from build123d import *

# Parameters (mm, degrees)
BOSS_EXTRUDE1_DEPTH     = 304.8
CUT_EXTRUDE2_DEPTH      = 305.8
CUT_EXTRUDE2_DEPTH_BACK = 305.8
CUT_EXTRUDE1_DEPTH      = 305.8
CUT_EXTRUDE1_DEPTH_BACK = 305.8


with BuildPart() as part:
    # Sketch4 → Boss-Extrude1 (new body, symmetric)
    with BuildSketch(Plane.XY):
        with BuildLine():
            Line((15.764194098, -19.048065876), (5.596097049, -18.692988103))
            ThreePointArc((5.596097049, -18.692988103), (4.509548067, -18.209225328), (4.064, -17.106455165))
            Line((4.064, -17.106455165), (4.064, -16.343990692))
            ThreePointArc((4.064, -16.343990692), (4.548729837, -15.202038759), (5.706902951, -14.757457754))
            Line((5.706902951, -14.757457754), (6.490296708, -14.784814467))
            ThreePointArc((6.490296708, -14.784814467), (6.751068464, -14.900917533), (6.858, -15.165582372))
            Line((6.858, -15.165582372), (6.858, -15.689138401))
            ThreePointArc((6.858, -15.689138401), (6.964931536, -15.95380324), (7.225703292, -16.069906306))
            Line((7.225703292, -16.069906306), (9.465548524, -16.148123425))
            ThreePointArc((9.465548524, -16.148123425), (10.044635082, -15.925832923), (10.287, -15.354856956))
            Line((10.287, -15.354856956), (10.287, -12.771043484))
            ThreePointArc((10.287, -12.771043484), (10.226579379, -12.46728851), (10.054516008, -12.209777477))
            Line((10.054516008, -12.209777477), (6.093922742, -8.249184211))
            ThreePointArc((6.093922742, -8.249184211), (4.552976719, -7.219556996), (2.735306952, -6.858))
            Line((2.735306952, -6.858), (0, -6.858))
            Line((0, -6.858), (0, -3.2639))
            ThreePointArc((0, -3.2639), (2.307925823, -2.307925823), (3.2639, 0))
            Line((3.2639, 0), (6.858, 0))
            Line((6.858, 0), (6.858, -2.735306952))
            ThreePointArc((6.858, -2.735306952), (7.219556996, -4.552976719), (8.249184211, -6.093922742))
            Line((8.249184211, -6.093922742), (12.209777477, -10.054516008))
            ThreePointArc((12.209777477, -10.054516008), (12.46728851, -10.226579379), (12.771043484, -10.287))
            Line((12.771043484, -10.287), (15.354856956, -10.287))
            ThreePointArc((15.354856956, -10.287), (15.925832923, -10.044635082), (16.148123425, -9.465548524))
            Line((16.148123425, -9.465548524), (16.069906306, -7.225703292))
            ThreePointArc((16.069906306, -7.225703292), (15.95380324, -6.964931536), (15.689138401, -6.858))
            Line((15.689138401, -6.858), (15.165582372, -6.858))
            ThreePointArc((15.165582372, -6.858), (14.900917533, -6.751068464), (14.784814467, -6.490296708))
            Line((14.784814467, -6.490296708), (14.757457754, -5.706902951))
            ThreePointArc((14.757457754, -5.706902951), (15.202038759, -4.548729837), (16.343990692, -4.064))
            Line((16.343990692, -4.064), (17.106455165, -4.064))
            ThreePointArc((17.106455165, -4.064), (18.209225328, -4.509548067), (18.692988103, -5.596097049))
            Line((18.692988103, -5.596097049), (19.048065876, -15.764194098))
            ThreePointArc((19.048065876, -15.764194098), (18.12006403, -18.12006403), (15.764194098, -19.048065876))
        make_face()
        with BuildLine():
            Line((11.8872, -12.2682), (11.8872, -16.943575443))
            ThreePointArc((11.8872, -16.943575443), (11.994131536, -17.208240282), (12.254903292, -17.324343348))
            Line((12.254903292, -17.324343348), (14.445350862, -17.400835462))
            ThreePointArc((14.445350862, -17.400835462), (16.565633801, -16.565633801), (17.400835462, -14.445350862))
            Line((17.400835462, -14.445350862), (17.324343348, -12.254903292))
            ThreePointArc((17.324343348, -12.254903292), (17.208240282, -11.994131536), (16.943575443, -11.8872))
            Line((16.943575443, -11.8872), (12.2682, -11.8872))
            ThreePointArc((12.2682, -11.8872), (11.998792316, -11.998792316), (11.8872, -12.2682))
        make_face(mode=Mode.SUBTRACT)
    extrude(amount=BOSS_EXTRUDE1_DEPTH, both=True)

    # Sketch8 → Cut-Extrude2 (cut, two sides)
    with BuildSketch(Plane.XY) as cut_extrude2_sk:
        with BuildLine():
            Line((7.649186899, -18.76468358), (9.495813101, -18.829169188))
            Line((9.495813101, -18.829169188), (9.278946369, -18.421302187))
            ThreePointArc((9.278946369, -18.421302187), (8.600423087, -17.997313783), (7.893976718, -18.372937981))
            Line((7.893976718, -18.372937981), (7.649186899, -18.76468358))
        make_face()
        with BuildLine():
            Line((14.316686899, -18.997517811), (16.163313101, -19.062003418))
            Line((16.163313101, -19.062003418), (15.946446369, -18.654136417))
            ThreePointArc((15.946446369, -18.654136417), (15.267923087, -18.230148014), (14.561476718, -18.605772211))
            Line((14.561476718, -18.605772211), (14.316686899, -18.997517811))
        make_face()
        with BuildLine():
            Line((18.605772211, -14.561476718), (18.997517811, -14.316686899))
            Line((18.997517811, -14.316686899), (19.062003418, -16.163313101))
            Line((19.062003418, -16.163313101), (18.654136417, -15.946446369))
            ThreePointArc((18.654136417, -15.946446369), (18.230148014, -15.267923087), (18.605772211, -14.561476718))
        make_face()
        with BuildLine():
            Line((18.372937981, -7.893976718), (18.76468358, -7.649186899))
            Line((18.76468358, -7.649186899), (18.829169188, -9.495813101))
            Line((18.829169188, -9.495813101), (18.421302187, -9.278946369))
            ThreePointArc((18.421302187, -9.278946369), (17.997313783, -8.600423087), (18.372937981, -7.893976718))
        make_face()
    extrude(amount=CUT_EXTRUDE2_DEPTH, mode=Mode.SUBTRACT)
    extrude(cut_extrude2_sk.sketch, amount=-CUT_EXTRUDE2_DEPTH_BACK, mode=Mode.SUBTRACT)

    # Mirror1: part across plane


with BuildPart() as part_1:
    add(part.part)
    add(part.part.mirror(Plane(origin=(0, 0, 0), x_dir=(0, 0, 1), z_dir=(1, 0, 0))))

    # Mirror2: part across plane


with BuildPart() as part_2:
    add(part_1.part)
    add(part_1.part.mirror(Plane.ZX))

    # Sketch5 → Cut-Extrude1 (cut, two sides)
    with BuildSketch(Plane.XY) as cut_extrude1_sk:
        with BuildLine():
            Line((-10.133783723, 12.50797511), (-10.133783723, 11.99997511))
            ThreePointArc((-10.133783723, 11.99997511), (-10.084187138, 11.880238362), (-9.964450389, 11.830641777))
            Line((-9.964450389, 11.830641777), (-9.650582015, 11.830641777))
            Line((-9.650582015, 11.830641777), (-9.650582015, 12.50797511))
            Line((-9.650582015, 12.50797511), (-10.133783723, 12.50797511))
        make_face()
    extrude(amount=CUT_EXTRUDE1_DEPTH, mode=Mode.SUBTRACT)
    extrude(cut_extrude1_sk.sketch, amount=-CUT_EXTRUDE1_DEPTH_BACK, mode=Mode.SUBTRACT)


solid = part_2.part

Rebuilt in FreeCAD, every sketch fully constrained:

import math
import FreeCAD as App
import Part
import Sketcher
Q = App.Units.Quantity

doc = App.newDocument("Part")
body = doc.addObject("PartDesign::Body", "Body")

# Sketch on XY plane
sketch1 = body.newObject("Sketcher::SketchObject", "Sketch")
sketch1.AttachmentSupport = (doc.getObject("XY_Plane"), [""])
sketch1.MapMode = "FlatFace"
sketch1.addGeometry([
    Part.LineSegment(App.Vector(5.596097, -18.692988, 0), App.Vector(15.764194, -19.048066, 0)),  # 0
    Part.ArcOfCircle(Part.Circle(App.Vector(15.875, -15.875, 0), App.Vector(0, 0, 1), 3.175), math.radians(-92), math.radians(2)),  # 1
    Part.LineSegment(App.Vector(19.048066, -15.764194, 0), App.Vector(18.692988, -5.596097, 0)),  # 2
    Part.ArcOfCircle(Part.Circle(App.Vector(17.106455, -5.6515, 0), App.Vector(0, 0, 1), 1.5875), math.radians(2), math.radians(90)),  # 3
    Part.LineSegment(App.Vector(17.106455, -4.064, 0), App.Vector(16.343991, -4.064, 0)),  # 4
    Part.ArcOfCircle(Part.Circle(App.Vector(16.343991, -5.6515, 0), App.Vector(0, 0, 1), 1.5875), math.radians(90), math.radians(182)),  # 5
    Part.LineSegment(App.Vector(14.757458, -5.706903, 0), App.Vector(14.784814, -6.490297, 0)),  # 6
    Part.ArcOfCircle(Part.Circle(App.Vector(15.165582, -6.477, 0), App.Vector(0, 0, 1), 0.381), math.radians(-178), math.radians(-90)),  # 7
    Part.LineSegment(App.Vector(15.165582, -6.858, 0), App.Vector(15.689138, -6.858, 0)),  # 8
    Part.ArcOfCircle(Part.Circle(App.Vector(15.689138, -7.239, 0), App.Vector(0, 0, 1), 0.381), math.radians(2), math.radians(90)),  # 9
    Part.LineSegment(App.Vector(16.069906, -7.225703, 0), App.Vector(16.148123, -9.465549, 0)),  # 10
    Part.ArcOfCircle(Part.Circle(App.Vector(15.354857, -9.49325, 0), App.Vector(0, 0, 1), 0.79375), math.radians(-90), math.radians(2)),  # 11
    Part.LineSegment(App.Vector(15.354857, -10.287, 0), App.Vector(12.771043, -10.287, 0)),  # 12
    Part.ArcOfCircle(Part.Circle(App.Vector(12.771043, -9.49325, 0), App.Vector(0, 0, 1), 0.79375), math.radians(-135), math.radians(-90)),  # 13
    Part.LineSegment(App.Vector(12.209777, -10.054516, 0), App.Vector(8.249184, -6.093923, 0)),  # 14
    Part.ArcOfCircle(Part.Circle(App.Vector(11.6078, -2.735307, 0), App.Vector(0, 0, 1), 4.7498), math.radians(180), math.radians(225)),  # 15
    Part.LineSegment(App.Vector(6.858, -2.735307, 0), App.Vector(6.858, 0, 0)),  # 16
    Part.LineSegment(App.Vector(6.858, 0, 0), App.Vector(3.2639, 0, 0)),  # 17
    Part.ArcOfCircle(Part.Circle(App.Vector(0, 0, 0), App.Vector(0, 0, 1), 3.2639), math.radians(-90), math.radians(0)),  # 18
    Part.LineSegment(App.Vector(0, -3.2639, 0), App.Vector(0, -6.858, 0)),  # 19
    Part.LineSegment(App.Vector(0, -6.858, 0), App.Vector(2.735307, -6.858, 0)),  # 20
    Part.ArcOfCircle(Part.Circle(App.Vector(2.735307, -11.6078, 0), App.Vector(0, 0, 1), 4.7498), math.radians(45), math.radians(90)),  # 21
    Part.LineSegment(App.Vector(6.093923, -8.249184, 0), App.Vector(10.054516, -12.209777, 0)),  # 22
    Part.ArcOfCircle(Part.Circle(App.Vector(9.49325, -12.771043, 0), App.Vector(0, 0, 1), 0.79375), math.radians(0), math.radians(45)),  # 23
    Part.LineSegment(App.Vector(10.287, -12.771043, 0), App.Vector(10.287, -15.354857, 0)),  # 24
    Part.ArcOfCircle(Part.Circle(App.Vector(9.49325, -15.354857, 0), App.Vector(0, 0, 1), 0.79375), math.radians(-92), math.radians(0)),  # 25
    Part.LineSegment(App.Vector(9.465549, -16.148123, 0), App.Vector(7.225703, -16.069906, 0)),  # 26
    Part.ArcOfCircle(Part.Circle(App.Vector(7.239, -15.689138, 0), App.Vector(0, 0, 1), 0.381), math.radians(180), math.radians(268)),  # 27
    Part.LineSegment(App.Vector(6.858, -15.689138, 0), App.Vector(6.858, -15.165582, 0)),  # 28
    Part.ArcOfCircle(Part.Circle(App.Vector(6.477, -15.165582, 0), App.Vector(0, 0, 1), 0.381), math.radians(0), math.radians(88)),  # 29
    Part.LineSegment(App.Vector(6.490297, -14.784814, 0), App.Vector(5.706903, -14.757458, 0)),  # 30
    Part.ArcOfCircle(Part.Circle(App.Vector(5.6515, -16.343991, 0), App.Vector(0, 0, 1), 1.5875), math.radians(88), math.radians(180)),  # 31
    Part.LineSegment(App.Vector(4.064, -16.343991, 0), App.Vector(4.064, -17.106455, 0)),  # 32
    Part.ArcOfCircle(Part.Circle(App.Vector(5.6515, -17.106455, 0), App.Vector(0, 0, 1), 1.5875), math.radians(180), math.radians(268)),  # 33
    Part.ArcOfCircle(Part.Circle(App.Vector(12.2682, -12.2682, 0), App.Vector(0, 0, 1), 0.381), math.radians(90), math.radians(180)),  # 34
    Part.LineSegment(App.Vector(12.2682, -11.8872, 0), App.Vector(16.943575, -11.8872, 0)),  # 35
    Part.ArcOfCircle(Part.Circle(App.Vector(16.943575, -12.2682, 0), App.Vector(0, 0, 1), 0.381), math.radians(2), math.radians(90)),  # 36
    Part.LineSegment(App.Vector(17.324343, -12.254903, 0), App.Vector(17.400835, -14.445351, 0)),  # 37
    Part.ArcOfCircle(Part.Circle(App.Vector(14.545076, -14.545076, 0), App.Vector(0, 0, 1), 2.8575), math.radians(-92), math.radians(2)),  # 38
    Part.LineSegment(App.Vector(14.445351, -17.400835, 0), App.Vector(12.254903, -17.324343, 0)),  # 39
    Part.ArcOfCircle(Part.Circle(App.Vector(12.2682, -16.943575, 0), App.Vector(0, 0, 1), 0.381), math.radians(180), math.radians(268)),  # 40
    Part.LineSegment(App.Vector(11.8872, -16.943575, 0), App.Vector(11.8872, -12.2682, 0)),  # 41
], False)
sketch1.addConstraint([
    Sketcher.Constraint("Tangent", 0, 2, 1, 1),
    Sketcher.Constraint("Tangent", 1, 2, 2, 1),
    Sketcher.Constraint("Tangent", 2, 2, 3, 1),
    Sketcher.Constraint("Tangent", 3, 2, 4, 1),
    Sketcher.Constraint("Tangent", 4, 2, 5, 1),
    Sketcher.Constraint("Tangent", 5, 2, 6, 1),
    Sketcher.Constraint("Tangent", 6, 2, 7, 1),
    Sketcher.Constraint("Tangent", 7, 2, 8, 1),
    Sketcher.Constraint("Tangent", 8, 2, 9, 2),
    Sketcher.Constraint("Tangent", 9, 1, 10, 1),
    Sketcher.Constraint("Tangent", 10, 2, 11, 2),
    Sketcher.Constraint("Tangent", 11, 1, 12, 1),
    Sketcher.Constraint("Tangent", 12, 2, 13, 2),
    Sketcher.Constraint("Tangent", 13, 1, 14, 1),
    Sketcher.Constraint("Tangent", 14, 2, 15, 2),
    Sketcher.Constraint("Tangent", 15, 1, 16, 1),
    Sketcher.Constraint("Coincident", 16, 2, 17, 1),
    Sketcher.Constraint("Coincident", 17, 2, 18, 2),
    Sketcher.Constraint("Coincident", 18, 1, 19, 1),
    Sketcher.Constraint("Coincident", 19, 2, 20, 1),
    Sketcher.Constraint("Tangent", 20, 2, 21, 2),
    Sketcher.Constraint("Tangent", 21, 1, 22, 1),
    Sketcher.Constraint("Tangent", 22, 2, 23, 2),
    Sketcher.Constraint("Tangent", 23, 1, 24, 1),
    Sketcher.Constraint("Tangent", 24, 2, 25, 2),
    Sketcher.Constraint("Tangent", 25, 1, 26, 1),
    Sketcher.Constraint("Tangent", 26, 2, 27, 2),
    Sketcher.Constraint("Tangent", 27, 1, 28, 1),
    Sketcher.Constraint("Tangent", 28, 2, 29, 1),
    Sketcher.Constraint("Tangent", 29, 2, 30, 1),
    Sketcher.Constraint("Tangent", 30, 2, 31, 1),
    Sketcher.Constraint("Tangent", 31, 2, 32, 1),
    Sketcher.Constraint("Tangent", 32, 2, 33, 1),
    Sketcher.Constraint("Tangent", 33, 2, 0, 1),
    Sketcher.Constraint("Tangent", 34, 1, 35, 1),
    Sketcher.Constraint("Tangent", 35, 2, 36, 2),
    Sketcher.Constraint("Tangent", 36, 1, 37, 1),
    Sketcher.Constraint("Tangent", 37, 2, 38, 2),
    Sketcher.Constraint("Tangent", 38, 1, 39, 1),
    Sketcher.Constraint("Tangent", 39, 2, 40, 2),
    Sketcher.Constraint("Tangent", 40, 1, 41, 1),
    Sketcher.Constraint("Tangent", 41, 2, 34, 2),
    Sketcher.Constraint("Horizontal", 4),
    Sketcher.Constraint("Horizontal", 8),
    Sketcher.Constraint("Horizontal", 12),
    Sketcher.Constraint("Vertical", 16),
    Sketcher.Constraint("Horizontal", 17),
    Sketcher.Constraint("Vertical", 19),
    Sketcher.Constraint("Horizontal", 20),
    Sketcher.Constraint("Vertical", 24),
    Sketcher.Constraint("Vertical", 28),
    Sketcher.Constraint("Vertical", 32),
    Sketcher.Constraint("Horizontal", 35),
    Sketcher.Constraint("Vertical", 41),
    Sketcher.Constraint("Coincident", 18, 3, -1, 1),
    Sketcher.Constraint("Equal", 3, 5),
    Sketcher.Constraint("Equal", 7, 9),
    Sketcher.Constraint("Equal", 11, 13),
    Sketcher.Constraint("Equal", 15, 21),
    Sketcher.Constraint("Equal", 13, 23),
    Sketcher.Constraint("Equal", 23, 25),
    Sketcher.Constraint("Equal", 9, 27),
    Sketcher.Constraint("Equal", 27, 29),
    Sketcher.Constraint("Equal", 5, 31),
    Sketcher.Constraint("Equal", 31, 33),
    Sketcher.Constraint("Equal", 29, 34),
    Sketcher.Constraint("Equal", 34, 36),
    Sketcher.Constraint("Equal", 36, 40),
    Sketcher.Constraint("PointOnObject", 16, 2, -1),
    Sketcher.Constraint("PointOnObject", 18, 1, -2),
    Sketcher.Constraint("Parallel", 2, 6),
    Sketcher.Constraint("Parallel", 6, 10),
    Sketcher.Constraint("Parallel", 14, 22),
    Sketcher.Constraint("Parallel", 0, 26),
    Sketcher.Constraint("Parallel", 26, 30),
    Sketcher.Constraint("Parallel", 10, 37),
    Sketcher.Constraint("Parallel", 30, 39),
    Sketcher.Constraint("Horizontal", 8, 2, 19, 2),
    Sketcher.Constraint("Vertical", 16, 2, 27, 1),
    Sketcher.Constraint("Equal", 20, 16),
    Sketcher.Constraint("Equal", 17, 19),
    Sketcher.Constraint("Equal", 12, 24),
    Sketcher.Constraint("Equal", 8, 28),
    Sketcher.Constraint("Equal", 4, 32),
    Sketcher.Constraint("Equal", 35, 41),
    Sketcher.Constraint("Equal", 0, 2),
    Sketcher.Constraint("Equal", 14, 22),
    Sketcher.Constraint("Equal", 10, 26),
    Sketcher.Constraint("Equal", 6, 30),
    Sketcher.Constraint("Angle", 0, Q("-2 deg")),
    Sketcher.Constraint("Radius", 1, Q("0.125 in")),
    Sketcher.Constraint("Radius", 3, Q("0.0625 in")),
    Sketcher.Constraint("Radius", 7, Q("0.015 in")),
    Sketcher.Constraint("Radius", 11, Q("0.03125 in")),
    Sketcher.Constraint("Radius", 15, Q("0.187 in")),
    Sketcher.Constraint("Radius", 18, Q("0.1285 in")),
    Sketcher.Constraint("Radius", 38, Q("0.1125 in")),
    Sketcher.Constraint("DistanceY", 3, 2, -1, 1, Q("0.16 in")),
    Sketcher.Constraint("DistanceY", 7, 2, -1, 1, Q("0.27 in")),
    Sketcher.Constraint("DistanceX", -1, 1, 1, 3, Q("0.625 in")),
    Sketcher.Constraint("DistanceX", -1, 1, 34, 3, Q("0.483 in")),
    Sketcher.Constraint("DistanceY", 34, 3, -1, 1, Q("0.483 in")),
    Sketcher.Constraint("DistanceY", 11, 1, -1, 1, Q("0.405 in")),
    Sketcher.Constraint("DistanceX", -1, 1, 13, 1, Q("0.4806999 in")),
    Sketcher.Constraint("DistanceX", 4, 2, 4, 1, Q("0.762464 mm")),
    Sketcher.Constraint("DistanceX", 8, 1, 8, 2, Q("0.523556 mm")),
    Sketcher.Constraint("DistanceX", 35, 1, 35, 2, Q("4.675375 mm")),
])
pad1 = body.newObject("PartDesign::Pad", "Pad")
pad1.Profile = sketch1
pad1.Length = Q("24 in")
pad1.Midplane = True

# Sketch on XY plane
sketch2 = body.newObject("Sketcher::SketchObject", "Sketch001")
sketch2.AttachmentSupport = (doc.getObject("XY_Plane"), [""])
sketch2.MapMode = "FlatFace"
sketch2.addGeometry([
    Part.LineSegment(App.Vector(7.649187, -18.764684, 0), App.Vector(9.495813, -18.829169, 0)),  # 0
    Part.LineSegment(App.Vector(9.495813, -18.829169, 0), App.Vector(9.278946, -18.421302, 0)),  # 1
    Part.ArcOfCircle(Part.Circle(App.Vector(8.5725, -18.796926, 0), App.Vector(0, 0, 1), 0.8001), math.radians(28), math.radians(148)),  # 2
    Part.LineSegment(App.Vector(7.893977, -18.372938, 0), App.Vector(7.649187, -18.764684, 0)),  # 3
    Part.LineSegment(App.Vector(14.316687, -18.997518, 0), App.Vector(16.163313, -19.062003, 0)),  # 4
    Part.LineSegment(App.Vector(16.163313, -19.062003, 0), App.Vector(15.946446, -18.654136, 0)),  # 5
    Part.ArcOfCircle(Part.Circle(App.Vector(15.24, -19.029761, 0), App.Vector(0, 0, 1), 0.8001), math.radians(28), math.radians(148)),  # 6
    Part.LineSegment(App.Vector(14.561477, -18.605772, 0), App.Vector(14.316687, -18.997518, 0)),  # 7
    Part.LineSegment(App.Vector(18.997518, -14.316687, 0), App.Vector(18.605772, -14.561477, 0)),  # 8
    Part.ArcOfCircle(Part.Circle(App.Vector(19.029761, -15.24, 0), App.Vector(0, 0, 1), 0.8001), math.radians(122), math.radians(242)),  # 9
    Part.LineSegment(App.Vector(18.654136, -15.946446, 0), App.Vector(19.062003, -16.163313, 0)),  # 10
    Part.LineSegment(App.Vector(19.062003, -16.163313, 0), App.Vector(18.997518, -14.316687, 0)),  # 11
    Part.LineSegment(App.Vector(18.764684, -7.649187, 0), App.Vector(18.372938, -7.893977, 0)),  # 12
    Part.ArcOfCircle(Part.Circle(App.Vector(18.796926, -8.5725, 0), App.Vector(0, 0, 1), 0.8001), math.radians(122), math.radians(242)),  # 13
    Part.LineSegment(App.Vector(18.421302, -9.278946, 0), App.Vector(18.829169, -9.495813, 0)),  # 14
    Part.LineSegment(App.Vector(18.829169, -9.495813, 0), App.Vector(18.764684, -7.649187, 0)),  # 15
], False)
sketch2.addConstraint([
    Sketcher.Constraint("Coincident", 0, 2, 1, 1),
    Sketcher.Constraint("Tangent", 1, 2, 2, 1),
    Sketcher.Constraint("Tangent", 2, 2, 3, 1),
    Sketcher.Constraint("Coincident", 3, 2, 0, 1),
    Sketcher.Constraint("Coincident", 4, 2, 5, 1),
    Sketcher.Constraint("Tangent", 5, 2, 6, 1),
    Sketcher.Constraint("Tangent", 6, 2, 7, 1),
    Sketcher.Constraint("Coincident", 7, 2, 4, 1),
    Sketcher.Constraint("Tangent", 8, 2, 9, 1),
    Sketcher.Constraint("Tangent", 9, 2, 10, 1),
    Sketcher.Constraint("Coincident", 10, 2, 11, 1),
    Sketcher.Constraint("Coincident", 11, 2, 8, 1),
    Sketcher.Constraint("Tangent", 12, 2, 13, 1),
    Sketcher.Constraint("Tangent", 13, 2, 14, 1),
    Sketcher.Constraint("Coincident", 14, 2, 15, 1),
    Sketcher.Constraint("Coincident", 15, 2, 12, 1),
    Sketcher.Constraint("Equal", 2, 6),
    Sketcher.Constraint("Equal", 6, 9),
    Sketcher.Constraint("Equal", 9, 13),
    Sketcher.Constraint("Parallel", 0, 4),
    Sketcher.Constraint("Parallel", 1, 5),
    Sketcher.Constraint("Parallel", 3, 7),
    Sketcher.Constraint("Parallel", 8, 12),
    Sketcher.Constraint("Parallel", 10, 14),
    Sketcher.Constraint("Parallel", 11, 15),
    Sketcher.Constraint("Equal", 1, 3),
    Sketcher.Constraint("Equal", 0, 4),
    Sketcher.Constraint("Equal", 7, 8),
    Sketcher.Constraint("Equal", 8, 10),
    Sketcher.Constraint("Equal", 10, 12),
    Sketcher.Constraint("Angle", 0, Q("-2 deg")),
    Sketcher.Constraint("Angle", 1, Q("118 deg")),
    Sketcher.Constraint("Angle", 8, Q("-148 deg")),
    Sketcher.Constraint("Angle", 10, Q("-28 deg")),
    Sketcher.Constraint("DistanceX", -1, 1, 6, 3, Q("0.6 in")),
    Sketcher.Constraint("DistanceY", 9, 3, -1, 1, Q("0.6 in")),
    Sketcher.Constraint("Radius", 2, Q("0.0315 in")),
    Sketcher.Constraint("DistanceX", -1, 1, 2, 3, Q("0.3375 in")),
    Sketcher.Constraint("DistanceY", 13, 3, -1, 1, Q("0.3375 in")),
    Sketcher.Constraint("DistanceY", 4, 2, 1, 2, Q("0.640701 mm")),
    Sketcher.Constraint("DistanceX", 12, 2, 9, 2, Q("0.281198 mm")),
    Sketcher.Constraint("Distance", 0, Q("1.847752 mm")),
    Sketcher.Constraint("DistanceY", 6, 3, -1, 1, Q("19.029761 mm")),
    Sketcher.Constraint("DistanceX", -1, 1, 9, 3, Q("19.029761 mm")),
])
pocket1 = body.newObject("PartDesign::Pocket", "Pocket")
pocket1.Profile = sketch2
pocket1.Type = "ThroughAll"
pocket1.Midplane = True
body2 = doc.addObject("PartDesign::Body", "Body001")
doc.recompute()

body2.BaseFeature = body
doc.recompute()

mirroring = doc.addObject("Part::Mirroring", "Mirroring")
mirroring.Source = body
mirroring.Base = App.Vector(0, 0, 0)
mirroring.Normal = App.Vector(1, 0, 0)
body3 = doc.addObject("PartDesign::Body", "Body002")
body3.BaseFeature = mirroring
boolean = body2.newObject("PartDesign::Boolean", "Boolean")
boolean.Type = "Fuse"
boolean.addObjects([body3])
doc.recompute()
body4 = doc.addObject("PartDesign::Body", "Body003")
doc.recompute()

body4.BaseFeature = body2
doc.recompute()

mirroring2 = doc.addObject("Part::Mirroring", "Mirroring001")
mirroring2.Source = body2
mirroring2.Base = App.Vector(0, 0, 0)
mirroring2.Normal = App.Vector(0, 1, 0)
body5 = doc.addObject("PartDesign::Body", "Body004")
body5.BaseFeature = mirroring2
boolean2 = body4.newObject("PartDesign::Boolean", "Boolean001")
boolean2.Type = "Fuse"
boolean2.addObjects([body5])
doc.recompute()

# Sketch on XY plane
sketch3 = body4.newObject("Sketcher::SketchObject", "Sketch002")
sketch3.AttachmentSupport = (doc.getObject("XY_Plane003"), [""])
sketch3.MapMode = "FlatFace"
sketch3.addGeometry([
    Part.LineSegment(App.Vector(-10.133784, 12.507975, 0), App.Vector(-10.133784, 11.999975, 0)),  # 0
    Part.ArcOfCircle(Part.Circle(App.Vector(-9.96445, 11.999975, 0), App.Vector(0, 0, 1), 0.169333), math.radians(180), math.radians(270)),  # 1
    Part.LineSegment(App.Vector(-9.96445, 11.830642, 0), App.Vector(-9.650582, 11.830642, 0)),  # 2
    Part.LineSegment(App.Vector(-9.650582, 11.830642, 0), App.Vector(-9.650582, 12.507975, 0)),  # 3
    Part.LineSegment(App.Vector(-9.650582, 12.507975, 0), App.Vector(-10.133784, 12.507975, 0)),  # 4
], False)
sketch3.addConstraint([
    Sketcher.Constraint("Tangent", 0, 2, 1, 1),
    Sketcher.Constraint("Tangent", 1, 2, 2, 1),
    Sketcher.Constraint("Coincident", 2, 2, 3, 1),
    Sketcher.Constraint("Coincident", 3, 2, 4, 1),
    Sketcher.Constraint("Coincident", 4, 2, 0, 1),
    Sketcher.Constraint("Vertical", 0),
    Sketcher.Constraint("Horizontal", 2),
    Sketcher.Constraint("Vertical", 3),
    Sketcher.Constraint("Horizontal", 4),
    Sketcher.Constraint("DistanceY", 0, 2, 0, 1, Q("0.02 in")),
    Sketcher.Constraint("DistanceX", 4, 2, 4, 1, Q("0.483202 mm")),
    Sketcher.Constraint("Radius", 1, Q("0.169333 mm")),
    Sketcher.Constraint("DistanceX", 1, 3, -1, 1, Q("9.96445 mm")),
    Sketcher.Constraint("DistanceY", -1, 1, 1, 2, Q("11.830642 mm")),
])
pocket2 = body4.newObject("PartDesign::Pocket", "Pocket001")
pocket2.Profile = sketch3
pocket2.Type = "ThroughAll"
pocket2.Midplane = True
mirroring.Visibility = False
mirroring2.Visibility = False

doc.recompute()
